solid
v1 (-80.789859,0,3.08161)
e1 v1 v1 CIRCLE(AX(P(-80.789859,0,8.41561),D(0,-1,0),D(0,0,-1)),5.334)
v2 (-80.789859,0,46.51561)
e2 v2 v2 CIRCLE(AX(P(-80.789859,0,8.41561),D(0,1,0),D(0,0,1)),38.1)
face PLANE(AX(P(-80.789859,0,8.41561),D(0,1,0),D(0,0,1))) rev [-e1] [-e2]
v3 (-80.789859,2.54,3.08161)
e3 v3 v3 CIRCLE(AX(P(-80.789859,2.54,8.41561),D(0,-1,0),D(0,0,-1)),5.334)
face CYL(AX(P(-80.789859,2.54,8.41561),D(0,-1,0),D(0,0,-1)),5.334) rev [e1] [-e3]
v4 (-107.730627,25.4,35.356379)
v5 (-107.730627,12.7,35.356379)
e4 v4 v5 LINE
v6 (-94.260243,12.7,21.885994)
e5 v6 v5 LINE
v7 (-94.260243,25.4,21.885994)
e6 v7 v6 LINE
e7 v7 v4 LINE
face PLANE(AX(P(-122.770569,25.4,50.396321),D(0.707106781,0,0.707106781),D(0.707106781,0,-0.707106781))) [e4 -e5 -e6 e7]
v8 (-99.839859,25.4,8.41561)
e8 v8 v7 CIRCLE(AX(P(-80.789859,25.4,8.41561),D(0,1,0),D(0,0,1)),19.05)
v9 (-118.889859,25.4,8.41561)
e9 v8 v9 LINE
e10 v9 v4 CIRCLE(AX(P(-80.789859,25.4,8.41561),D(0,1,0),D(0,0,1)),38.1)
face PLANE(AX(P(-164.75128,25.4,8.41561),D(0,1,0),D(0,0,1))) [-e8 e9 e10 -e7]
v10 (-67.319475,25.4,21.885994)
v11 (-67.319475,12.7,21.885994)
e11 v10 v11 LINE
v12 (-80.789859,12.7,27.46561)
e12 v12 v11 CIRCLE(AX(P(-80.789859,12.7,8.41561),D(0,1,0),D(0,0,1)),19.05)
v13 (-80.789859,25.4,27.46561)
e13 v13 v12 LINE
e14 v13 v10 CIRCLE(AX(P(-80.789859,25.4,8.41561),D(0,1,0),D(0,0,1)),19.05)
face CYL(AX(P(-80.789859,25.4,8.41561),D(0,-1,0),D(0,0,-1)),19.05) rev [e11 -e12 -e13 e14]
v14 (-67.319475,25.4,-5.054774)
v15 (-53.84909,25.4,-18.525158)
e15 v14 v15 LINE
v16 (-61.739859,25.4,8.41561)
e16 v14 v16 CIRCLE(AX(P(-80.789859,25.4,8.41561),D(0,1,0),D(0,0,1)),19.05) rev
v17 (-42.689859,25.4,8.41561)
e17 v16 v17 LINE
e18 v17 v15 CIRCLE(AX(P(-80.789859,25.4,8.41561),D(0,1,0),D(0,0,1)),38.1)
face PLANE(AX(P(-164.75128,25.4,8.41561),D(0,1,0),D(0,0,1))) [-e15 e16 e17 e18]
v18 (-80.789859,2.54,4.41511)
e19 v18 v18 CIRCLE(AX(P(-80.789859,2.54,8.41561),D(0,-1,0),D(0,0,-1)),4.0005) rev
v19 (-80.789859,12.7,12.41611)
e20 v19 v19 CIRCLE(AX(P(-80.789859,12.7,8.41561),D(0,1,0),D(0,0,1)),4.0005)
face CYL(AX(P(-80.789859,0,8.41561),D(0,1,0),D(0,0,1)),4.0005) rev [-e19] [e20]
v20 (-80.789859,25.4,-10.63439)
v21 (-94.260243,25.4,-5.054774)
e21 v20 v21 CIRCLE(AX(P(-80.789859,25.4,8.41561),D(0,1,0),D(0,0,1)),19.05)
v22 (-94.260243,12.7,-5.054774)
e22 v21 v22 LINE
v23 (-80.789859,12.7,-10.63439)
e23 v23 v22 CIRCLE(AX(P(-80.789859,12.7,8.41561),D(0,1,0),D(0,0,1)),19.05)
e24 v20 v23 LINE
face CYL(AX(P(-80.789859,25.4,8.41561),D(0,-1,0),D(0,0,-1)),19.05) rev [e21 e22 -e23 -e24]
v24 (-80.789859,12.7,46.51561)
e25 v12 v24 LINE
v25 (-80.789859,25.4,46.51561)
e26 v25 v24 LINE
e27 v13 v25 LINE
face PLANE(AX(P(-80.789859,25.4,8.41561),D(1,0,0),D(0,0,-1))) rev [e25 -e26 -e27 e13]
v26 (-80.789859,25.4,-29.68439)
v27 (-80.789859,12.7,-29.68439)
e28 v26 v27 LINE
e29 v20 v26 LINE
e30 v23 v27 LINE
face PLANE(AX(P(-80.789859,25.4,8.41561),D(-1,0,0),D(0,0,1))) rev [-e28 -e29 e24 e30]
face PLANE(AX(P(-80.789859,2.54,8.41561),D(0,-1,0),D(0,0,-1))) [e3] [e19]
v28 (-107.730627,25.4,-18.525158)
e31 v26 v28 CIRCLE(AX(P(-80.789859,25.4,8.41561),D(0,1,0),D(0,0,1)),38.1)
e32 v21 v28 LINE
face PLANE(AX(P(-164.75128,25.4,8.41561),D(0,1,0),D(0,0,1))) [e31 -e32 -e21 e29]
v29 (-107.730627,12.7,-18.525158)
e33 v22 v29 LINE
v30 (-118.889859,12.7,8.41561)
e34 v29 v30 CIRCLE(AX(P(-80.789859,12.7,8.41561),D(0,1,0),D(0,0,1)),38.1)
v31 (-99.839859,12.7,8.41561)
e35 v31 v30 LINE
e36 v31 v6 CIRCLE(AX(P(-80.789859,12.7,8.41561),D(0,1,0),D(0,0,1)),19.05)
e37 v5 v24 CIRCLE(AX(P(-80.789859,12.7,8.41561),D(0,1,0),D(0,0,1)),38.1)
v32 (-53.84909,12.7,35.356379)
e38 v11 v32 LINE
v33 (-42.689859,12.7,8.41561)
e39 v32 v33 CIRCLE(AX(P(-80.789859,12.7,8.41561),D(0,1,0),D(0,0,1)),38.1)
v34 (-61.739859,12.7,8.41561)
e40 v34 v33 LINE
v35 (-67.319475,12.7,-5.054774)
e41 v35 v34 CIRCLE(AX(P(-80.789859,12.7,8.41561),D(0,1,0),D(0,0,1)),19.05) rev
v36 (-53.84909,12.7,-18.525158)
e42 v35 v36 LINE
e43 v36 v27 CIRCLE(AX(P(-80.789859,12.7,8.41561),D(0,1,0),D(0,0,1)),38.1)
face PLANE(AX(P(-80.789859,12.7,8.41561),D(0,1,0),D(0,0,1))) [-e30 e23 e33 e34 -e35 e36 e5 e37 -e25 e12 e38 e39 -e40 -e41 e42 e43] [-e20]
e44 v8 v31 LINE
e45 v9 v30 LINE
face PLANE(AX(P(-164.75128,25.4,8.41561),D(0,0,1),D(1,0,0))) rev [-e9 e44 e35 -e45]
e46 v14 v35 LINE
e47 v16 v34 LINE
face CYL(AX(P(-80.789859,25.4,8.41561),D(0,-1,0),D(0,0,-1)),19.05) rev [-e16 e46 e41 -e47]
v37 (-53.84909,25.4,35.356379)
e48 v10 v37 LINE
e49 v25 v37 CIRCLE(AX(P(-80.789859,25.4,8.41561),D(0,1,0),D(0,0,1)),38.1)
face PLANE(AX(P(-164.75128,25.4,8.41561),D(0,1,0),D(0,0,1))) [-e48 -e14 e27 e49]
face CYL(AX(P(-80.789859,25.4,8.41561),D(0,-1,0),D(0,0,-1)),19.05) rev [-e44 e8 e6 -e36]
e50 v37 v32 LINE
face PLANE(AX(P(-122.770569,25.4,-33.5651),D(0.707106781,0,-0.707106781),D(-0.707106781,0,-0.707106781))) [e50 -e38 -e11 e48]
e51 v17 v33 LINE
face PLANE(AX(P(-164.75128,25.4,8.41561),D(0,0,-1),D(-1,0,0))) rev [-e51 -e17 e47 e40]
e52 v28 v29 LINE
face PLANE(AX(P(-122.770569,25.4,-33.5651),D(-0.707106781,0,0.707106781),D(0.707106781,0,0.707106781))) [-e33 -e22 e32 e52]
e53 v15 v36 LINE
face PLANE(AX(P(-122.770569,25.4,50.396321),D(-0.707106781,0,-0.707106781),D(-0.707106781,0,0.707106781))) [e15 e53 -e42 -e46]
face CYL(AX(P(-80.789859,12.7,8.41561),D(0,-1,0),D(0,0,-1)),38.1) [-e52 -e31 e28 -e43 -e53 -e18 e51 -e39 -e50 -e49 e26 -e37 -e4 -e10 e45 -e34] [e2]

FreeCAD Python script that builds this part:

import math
import FreeCAD as App
import Part
import Sketcher
from FreeCAD import Vector
Q = App.Units.Quantity

doc = App.newDocument("Part")
params = doc.addObject("Spreadsheet::Sheet", "Params")
for row, (alias, value) in enumerate([
    ("sketch1_diameter", "3 in"),
    ("pad1_length", "0.5 in"),
    ("sketch2_diameter", "0.315 in"),
    ("pocket1_length", "0.5 in"),
    ("sketch3_radius", "1.5 in"),
    ("sketch3_radius2", "0.75 in"),
    ("pad2_length", "0.5 in"),
    ("sketch4_diameter", "0.42 in"),
    ("pocket2_length", "0.1 in"),
], start=1):
    params.set(f"A{row}", alias)
    params.set(f"B{row}", "=" + value)
    params.setAlias(f"B{row}", alias)

body = doc.addObject("PartDesign::Body", "Body")

# Sketch on XZ plane
sketch1 = doc.addObject("Sketcher::SketchObject", "Sketch")
body.addObject(sketch1)
sketch1.AttachmentSupport = (doc.XZ_Plane, [""])
sketch1.MapMode = "FlatFace"
sketch1.addGeometry(Part.Circle(Vector(-81, 8, 0), Vector(0, 0, 1), 38), False)
sketch1.addConstraint(Sketcher.Constraint("Diameter", 0, Q("3 in")))
sketch1.addConstraint(Sketcher.Constraint("DistanceX", 0, 3, -1, 1, 80.789859))
sketch1.addConstraint(Sketcher.Constraint("DistanceY", -1, 1, 0, 3, 8.41561))
sketch1.setExpression("Constraints[0]", "Params.sketch1_diameter")
pad1 = doc.addObject("PartDesign::Pad", "Pad")
body.addObject(pad1)
pad1.Profile = sketch1
pad1.setExpression("Length", "Params.pad1_length")
pad1.Reversed = True

# Sketch on XZ plane
sketch2 = doc.addObject("Sketcher::SketchObject", "Sketch001")
body.addObject(sketch2)
sketch2.AttachmentSupport = (doc.XZ_Plane, [""])
sketch2.MapMode = "FlatFace"
sketch2.AttachmentOffset = App.Placement(Vector(0, 0, -0.5 * 25.4), App.Rotation())
sketch2.addGeometry(Part.Circle(Vector(-80.8, 8.4, 0), Vector(0, 0, 1), 4), False)
sketch2.addConstraint(Sketcher.Constraint("Diameter", 0, Q("0.315 in")))
sketch2.addConstraint(Sketcher.Constraint("DistanceX", 0, 3, -1, 1, 80.789859))
sketch2.addConstraint(Sketcher.Constraint("DistanceY", -1, 1, 0, 3, 8.41561))
sketch2.setExpression("Constraints[0]", "Params.sketch2_diameter")
pocket1 = doc.addObject("PartDesign::Pocket", "Pocket")
body.addObject(pocket1)
pocket1.Profile = sketch2
pocket1.setExpression("Length", "Params.pocket1_length")
pocket1.Reversed = True

# Sketch on XZ plane
sketch3 = doc.addObject("Sketcher::SketchObject", "Sketch002")
body.addObject(sketch3)
sketch3.AttachmentSupport = (doc.XZ_Plane, [""])
sketch3.MapMode = "FlatFace"
sketch3.AttachmentOffset = App.Placement(Vector(0, 0, -0.5 * 25.4), App.Rotation())
sketch3.addGeometry(Part.ArcOfCircle(Part.Circle(Vector(-81, 8, 0), Vector(0, 0, 1), 19), math.radians(-135), math.radians(-90)), False)
sketch3.addGeometry(Part.LineSegment(Vector(-81, -11, 0), Vector(-81, -30, 0)), False)
sketch3.addGeometry(Part.ArcOfCircle(Part.Circle(Vector(-81, 8, 0), Vector(0, 0, 1), 38), math.radians(-135), math.radians(-90)), False)
sketch3.addGeometry(Part.LineSegment(Vector(-108, -19, 0), Vector(-94, -5, 0)), False)
sketch3.addGeometry(Part.LineSegment(Vector(-54, -19, 0), Vector(-67, -5, 0)), False)
sketch3.addGeometry(Part.ArcOfCircle(Part.Circle(Vector(-81, 8, 0), Vector(0, 0, 1), 19), math.radians(-45), math.radians(0)), False)
sketch3.addGeometry(Part.LineSegment(Vector(-62, 8, 0), Vector(-43, 8, 0)), False)
sketch3.addGeometry(Part.ArcOfCircle(Part.Circle(Vector(-81, 8, 0), Vector(0, 0, 1), 38), math.radians(-45), math.radians(0)), False)
sketch3.addGeometry(Part.LineSegment(Vector(-54, 35, 0), Vector(-67, 22, 0)), False)
sketch3.addGeometry(Part.ArcOfCircle(Part.Circle(Vector(-81, 8, 0), Vector(0, 0, 1), 19), math.radians(45), math.radians(90)), False)
sketch3.addGeometry(Part.LineSegment(Vector(-81, 27, 0), Vector(-81, 47, 0)), False)
sketch3.addGeometry(Part.ArcOfCircle(Part.Circle(Vector(-81, 8, 0), Vector(0, 0, 1), 38), math.radians(45), math.radians(90)), False)
sketch3.addGeometry(Part.ArcOfCircle(Part.Circle(Vector(-81, 8, 0), Vector(0, 0, 1), 19), math.radians(135), math.radians(180)), False)
sketch3.addGeometry(Part.LineSegment(Vector(-100, 8, 0), Vector(-119, 8, 0)), False)
sketch3.addGeometry(Part.ArcOfCircle(Part.Circle(Vector(-81, 8, 0), Vector(0, 0, 1), 38), math.radians(135), math.radians(180)), False)
sketch3.addGeometry(Part.LineSegment(Vector(-108, 35, 0), Vector(-94, 22, 0)), False)
sketch3.addConstraint(Sketcher.Constraint("Coincident", 0, 2, 1, 1))
sketch3.addConstraint(Sketcher.Constraint("Coincident", 1, 2, 2, 2))
sketch3.addConstraint(Sketcher.Constraint("Coincident", 2, 1, 3, 1))
sketch3.addConstraint(Sketcher.Constraint("Coincident", 3, 2, 0, 1))
sketch3.addConstraint(Sketcher.Constraint("Coincident", 4, 2, 5, 1))
sketch3.addConstraint(Sketcher.Constraint("Coincident", 5, 2, 6, 1))
sketch3.addConstraint(Sketcher.Constraint("Coincident", 6, 2, 7, 2))
sketch3.addConstraint(Sketcher.Constraint("Coincident", 7, 1, 4, 1))
sketch3.addConstraint(Sketcher.Constraint("Coincident", 8, 2, 9, 1))
sketch3.addConstraint(Sketcher.Constraint("Coincident", 9, 2, 10, 1))
sketch3.addConstraint(Sketcher.Constraint("Coincident", 10, 2, 11, 2))
sketch3.addConstraint(Sketcher.Constraint("Coincident", 11, 1, 8, 1))
sketch3.addConstraint(Sketcher.Constraint("Coincident", 12, 2, 13, 1))
sketch3.addConstraint(Sketcher.Constraint("Coincident", 13, 2, 14, 2))
sketch3.addConstraint(Sketcher.Constraint("Coincident", 14, 1, 15, 1))
sketch3.addConstraint(Sketcher.Constraint("Coincident", 15, 2, 12, 1))
sketch3.addConstraint(Sketcher.Constraint("Vertical", 1))
sketch3.addConstraint(Sketcher.Constraint("Horizontal", 6))
sketch3.addConstraint(Sketcher.Constraint("Vertical", 10))
sketch3.addConstraint(Sketcher.Constraint("Horizontal", 13))
sketch3.addConstraint(Sketcher.Constraint("Coincident", 2, 3, 0, 3))
sketch3.addConstraint(Sketcher.Constraint("Coincident", 5, 3, 0, 3))
sketch3.addConstraint(Sketcher.Constraint("Coincident", 7, 3, 0, 3))
sketch3.addConstraint(Sketcher.Constraint("Coincident", 9, 3, 0, 3))
sketch3.addConstraint(Sketcher.Constraint("Coincident", 11, 3, 0, 3))
sketch3.addConstraint(Sketcher.Constraint("Coincident", 12, 3, 0, 3))
sketch3.addConstraint(Sketcher.Constraint("Coincident", 14, 3, 0, 3))
sketch3.addConstraint(Sketcher.Constraint("Equal", 0, 5))
sketch3.addConstraint(Sketcher.Constraint("Equal", 2, 7))
sketch3.addConstraint(Sketcher.Constraint("Equal", 5, 9))
sketch3.addConstraint(Sketcher.Constraint("Equal", 7, 11))
sketch3.addConstraint(Sketcher.Constraint("Equal", 9, 12))
sketch3.addConstraint(Sketcher.Constraint("Equal", 11, 14))
sketch3.addConstraint(Sketcher.Constraint("Perpendicular", 3, 4))
sketch3.addConstraint(Sketcher.Constraint("Perpendicular", 4, 8))
sketch3.addConstraint(Sketcher.Constraint("Perpendicular", 8, 15))
sketch3.addConstraint(Sketcher.Constraint("Horizontal", 3, 2, 4, 2))
sketch3.addConstraint(Sketcher.Constraint("Horizontal", 14, 3, 5, 2))
sketch3.addConstraint(Sketcher.Constraint("Horizontal", 2, 1, 7, 1))
sketch3.addConstraint(Sketcher.Constraint("Horizontal", 6, 2, 12, 2))
sketch3.addConstraint(Sketcher.Constraint("Horizontal", 11, 1, 14, 1))
sketch3.addConstraint(Sketcher.Constraint("Vertical", 14, 3, 0, 2))
sketch3.addConstraint(Sketcher.Constraint("Vertical", 4, 2, 8, 2))
sketch3.addConstraint(Sketcher.Constraint("Vertical", 1, 2, 9, 2))
sketch3.addConstraint(Sketcher.Constraint("Radius", 2, Q("1.5 in")))
sketch3.addConstraint(Sketcher.Constraint("Radius", 0, Q("0.75 in")))
sketch3.addConstraint(Sketcher.Constraint("DistanceX", 0, 3, -1, 1, 80.789859))
sketch3.addConstraint(Sketcher.Constraint("DistanceY", -1, 1, 0, 3, 8.41561))
sketch3.addConstraint(Sketcher.Constraint("DistanceY", 2, 1, -1, 1, 18.525158))
sketch3.setExpression("Constraints[44]", "Params.sketch3_radius")
sketch3.setExpression("Constraints[45]", "Params.sketch3_radius2")
pad2 = doc.addObject("PartDesign::Pad", "Pad001")
body.addObject(pad2)
pad2.Profile = sketch3
pad2.setExpression("Length", "Params.pad2_length")
pad2.Reversed = True

# Sketch on XZ plane
sketch4 = doc.addObject("Sketcher::SketchObject", "Sketch003")
body.addObject(sketch4)
sketch4.AttachmentSupport = (doc.XZ_Plane, [""])
sketch4.MapMode = "FlatFace"
sketch4.addGeometry(Part.Circle(Vector(-81, 8, 0), Vector(0, 0, 1), 5), False)
sketch4.addConstraint(Sketcher.Constraint("Diameter", 0, Q("0.42 in")))
sketch4.addConstraint(Sketcher.Constraint("DistanceX", 0, 3, -1, 1, 80.789859))
sketch4.addConstraint(Sketcher.Constraint("DistanceY", -1, 1, 0, 3, 8.41561))
sketch4.setExpression("Constraints[0]", "Params.sketch4_diameter")
pocket2 = doc.addObject("PartDesign::Pocket", "Pocket001")
body.addObject(pocket2)
pocket2.Profile = sketch4
pocket2.setExpression("Length", "Params.pocket2_length")

doc.recompute()
